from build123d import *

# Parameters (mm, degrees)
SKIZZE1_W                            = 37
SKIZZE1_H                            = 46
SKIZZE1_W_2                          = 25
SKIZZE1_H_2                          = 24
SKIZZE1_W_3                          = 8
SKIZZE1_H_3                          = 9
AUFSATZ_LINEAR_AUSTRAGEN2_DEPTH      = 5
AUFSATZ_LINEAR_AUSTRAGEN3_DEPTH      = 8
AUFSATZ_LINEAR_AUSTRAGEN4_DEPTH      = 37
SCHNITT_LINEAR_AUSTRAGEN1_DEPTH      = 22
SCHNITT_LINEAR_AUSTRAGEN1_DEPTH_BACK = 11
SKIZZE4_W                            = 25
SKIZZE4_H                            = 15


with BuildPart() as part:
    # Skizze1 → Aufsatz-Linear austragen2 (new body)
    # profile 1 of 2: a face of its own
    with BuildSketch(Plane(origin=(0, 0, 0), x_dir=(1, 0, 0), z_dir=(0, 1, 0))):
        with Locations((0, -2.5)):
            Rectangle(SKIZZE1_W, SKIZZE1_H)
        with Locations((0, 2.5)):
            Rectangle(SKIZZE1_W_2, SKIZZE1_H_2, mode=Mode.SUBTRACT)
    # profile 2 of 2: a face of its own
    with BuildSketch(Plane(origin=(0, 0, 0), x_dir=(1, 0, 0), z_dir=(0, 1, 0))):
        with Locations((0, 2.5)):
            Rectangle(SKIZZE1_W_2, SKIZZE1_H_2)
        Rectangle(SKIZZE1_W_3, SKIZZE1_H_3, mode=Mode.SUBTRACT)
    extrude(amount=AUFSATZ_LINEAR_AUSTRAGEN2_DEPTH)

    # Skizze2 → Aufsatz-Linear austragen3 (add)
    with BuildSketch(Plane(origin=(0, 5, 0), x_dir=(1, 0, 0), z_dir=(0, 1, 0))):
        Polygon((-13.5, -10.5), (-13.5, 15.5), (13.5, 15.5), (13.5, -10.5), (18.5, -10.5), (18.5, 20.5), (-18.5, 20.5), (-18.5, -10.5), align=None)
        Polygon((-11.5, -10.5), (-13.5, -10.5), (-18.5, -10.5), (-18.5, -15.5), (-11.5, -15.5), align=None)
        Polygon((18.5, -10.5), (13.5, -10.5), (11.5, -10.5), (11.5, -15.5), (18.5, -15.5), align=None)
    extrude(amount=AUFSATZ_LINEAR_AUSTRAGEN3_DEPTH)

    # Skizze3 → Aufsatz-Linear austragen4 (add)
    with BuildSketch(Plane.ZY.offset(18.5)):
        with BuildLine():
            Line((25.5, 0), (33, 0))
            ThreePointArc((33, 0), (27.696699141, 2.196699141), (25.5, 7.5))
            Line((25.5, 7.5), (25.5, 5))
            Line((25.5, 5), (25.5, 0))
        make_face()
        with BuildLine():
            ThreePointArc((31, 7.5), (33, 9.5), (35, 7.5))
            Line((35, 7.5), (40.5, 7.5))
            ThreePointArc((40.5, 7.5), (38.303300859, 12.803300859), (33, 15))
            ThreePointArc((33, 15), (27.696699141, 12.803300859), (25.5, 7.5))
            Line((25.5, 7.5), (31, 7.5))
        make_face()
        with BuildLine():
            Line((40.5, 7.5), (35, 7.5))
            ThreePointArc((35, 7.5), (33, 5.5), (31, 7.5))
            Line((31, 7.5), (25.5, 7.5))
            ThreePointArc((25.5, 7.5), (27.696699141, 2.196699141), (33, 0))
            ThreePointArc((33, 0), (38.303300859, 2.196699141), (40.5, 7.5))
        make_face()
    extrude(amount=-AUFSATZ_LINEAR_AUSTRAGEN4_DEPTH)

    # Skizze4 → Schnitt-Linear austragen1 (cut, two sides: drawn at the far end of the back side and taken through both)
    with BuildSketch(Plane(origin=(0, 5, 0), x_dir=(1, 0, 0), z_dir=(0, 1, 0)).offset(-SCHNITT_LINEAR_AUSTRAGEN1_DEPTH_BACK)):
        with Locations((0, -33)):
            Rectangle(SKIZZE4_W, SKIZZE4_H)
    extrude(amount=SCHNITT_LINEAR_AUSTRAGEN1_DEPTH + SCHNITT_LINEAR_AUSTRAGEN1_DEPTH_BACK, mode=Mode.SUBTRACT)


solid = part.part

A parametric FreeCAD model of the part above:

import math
import FreeCAD as App
import Part
import Sketcher

V = App.Vector
Q = App.Units.Quantity

doc = App.newDocument("Part")
params = doc.addObject("Spreadsheet::Sheet", "Params")
for row, (alias, value) in enumerate([
    ("sketch1_width", "37 mm"),
    ("sketch1_width2", "8 mm"),
    ("sketch1_height", "46 mm"),
    ("sketch1_height2", "9 mm"),
    ("pad1_length", "5 mm"),
    ("sketch2_width", "27 mm"),
    ("sketch2_width2", "2 mm"),
    ("sketch2_width3", "7 mm"),
    ("sketch2_height", "26 mm"),
    ("sketch2_height2", "5 mm"),
    ("pad2_length", "8 mm"),
    ("sketch3_diameter", "4 mm"),
    ("sketch3_radius", "7.5 mm"),
    ("pad3_length", "37 mm"),
    ("sketch4_width", "25 mm"),
    ("sketch4_height", "15 mm"),
], start=1):
    params.set(f"A{row}", alias)
    params.set(f"B{row}", "=" + value)
    params.setAlias(f"B{row}", alias)

body = doc.addObject("PartDesign::Body", "Body")

# Sketch on XZ plane
sketch1 = body.newObject("Sketcher::SketchObject", "Sketch")
sketch1.AttachmentSupport = (doc.getObject("XZ_Plane"), [""])
sketch1.MapMode = "FlatFace"
sketch1.addGeometry(Part.LineSegment(V(-18.5, -20.5, 0), V(-18.5, 25.5, 0)), False)
sketch1.addGeometry(Part.LineSegment(V(-18.5, 25.5, 0), V(18.5, 25.5, 0)), False)
sketch1.addGeometry(Part.LineSegment(V(18.5, 25.5, 0), V(18.5, -20.5, 0)), False)
sketch1.addGeometry(Part.LineSegment(V(18.5, -20.5, 0), V(-18.5, -20.5, 0)), False)
sketch1.addGeometry(Part.LineSegment(V(4, 4.5, 0), V(-4, 4.5, 0)), False)
sketch1.addGeometry(Part.LineSegment(V(-4, 4.5, 0), V(-4, -4.5, 0)), False)
sketch1.addGeometry(Part.LineSegment(V(-4, -4.5, 0), V(4, -4.5, 0)), False)
sketch1.addGeometry(Part.LineSegment(V(4, -4.5, 0), V(4, 4.5, 0)), False)
sketch1.addConstraint(Sketcher.Constraint("Coincident", 0, 2, 1, 1))
sketch1.addConstraint(Sketcher.Constraint("Coincident", 1, 2, 2, 1))
sketch1.addConstraint(Sketcher.Constraint("Coincident", 2, 2, 3, 1))
sketch1.addConstraint(Sketcher.Constraint("Coincident", 3, 2, 0, 1))
sketch1.addConstraint(Sketcher.Constraint("Coincident", 4, 2, 5, 1))
sketch1.addConstraint(Sketcher.Constraint("Coincident", 5, 2, 6, 1))
sketch1.addConstraint(Sketcher.Constraint("Coincident", 6, 2, 7, 1))
sketch1.addConstraint(Sketcher.Constraint("Coincident", 7, 2, 4, 1))
sketch1.addConstraint(Sketcher.Constraint("Vertical", 0))
sketch1.addConstraint(Sketcher.Constraint("Horizontal", 1))
sketch1.addConstraint(Sketcher.Constraint("Vertical", 2))
sketch1.addConstraint(Sketcher.Constraint("Horizontal", 3))
sketch1.addConstraint(Sketcher.Constraint("Horizontal", 4))
sketch1.addConstraint(Sketcher.Constraint("Vertical", 5))
sketch1.addConstraint(Sketcher.Constraint("Horizontal", 6))
sketch1.addConstraint(Sketcher.Constraint("Vertical", 7))
sketch1.addConstraint(Sketcher.Constraint("Symmetric", 4, 2, 6, 2, -1, 1))
sketch1.addConstraint(Sketcher.Constraint("DistanceX", 1, 1, 1, 2, Q("37 mm")))
sketch1.addConstraint(Sketcher.Constraint("DistanceX", 4, 2, 4, 1, Q("8 mm")))
sketch1.addConstraint(Sketcher.Constraint("DistanceY", 0, 1, 0, 2, Q("46 mm")))
sketch1.addConstraint(Sketcher.Constraint("DistanceY", 5, 2, 5, 1, Q("9 mm")))
sketch1.addConstraint(Sketcher.Constraint("DistanceY", 4, 2, 0, 2, Q("21 mm")))
sketch1.addConstraint(Sketcher.Constraint("DistanceX", 0, 2, -1, 1, Q("18.5 mm")))
sketch1.setExpression("Constraints[17]", "Params.sketch1_width")
sketch1.setExpression("Constraints[18]", "Params.sketch1_width2")
sketch1.setExpression("Constraints[19]", "Params.sketch1_height")
sketch1.setExpression("Constraints[20]", "Params.sketch1_height2")
pad1 = body.newObject("PartDesign::Pad", "Pad")
pad1.Profile = sketch1
pad1.setExpression("Length", "Params.pad1_length")
pad1.Reversed = True

# Sketch on XZ plane
sketch2 = body.newObject("Sketcher::SketchObject", "Sketch001")
sketch2.AttachmentSupport = (doc.getObject("XZ_Plane"), [""])
sketch2.MapMode = "FlatFace"
sketch2.AttachmentOffset = App.Placement(V(0, 0, -5), App.Rotation())
sketch2.addGeometry(Part.LineSegment(V(-13.5, 10.5, 0), V(-13.5, -15.5, 0)), False)
sketch2.addGeometry(Part.LineSegment(V(-13.5, -15.5, 0), V(13.5, -15.5, 0)), False)
sketch2.addGeometry(Part.LineSegment(V(13.5, -15.5, 0), V(13.5, 10.5, 0)), False)
sketch2.addGeometry(Part.LineSegment(V(13.5, 10.5, 0), V(11.5, 10.5, 0)), False)
sketch2.addGeometry(Part.LineSegment(V(11.5, 10.5, 0), V(11.5, 15.5, 0)), False)
sketch2.addGeometry(Part.LineSegment(V(11.5, 15.5, 0), V(18.5, 15.5, 0)), False)
sketch2.addGeometry(Part.LineSegment(V(18.5, 15.5, 0), V(18.5, -20.5, 0)), False)
sketch2.addGeometry(Part.LineSegment(V(18.5, -20.5, 0), V(-18.5, -20.5, 0)), False)
sketch2.addGeometry(Part.LineSegment(V(-18.5, -20.5, 0), V(-18.5, 15.5, 0)), False)
sketch2.addGeometry(Part.LineSegment(V(-18.5, 15.5, 0), V(-11.5, 15.5, 0)), False)
sketch2.addGeometry(Part.LineSegment(V(-11.5, 15.5, 0), V(-11.5, 10.5, 0)), False)
sketch2.addGeometry(Part.LineSegment(V(-11.5, 10.5, 0), V(-13.5, 10.5, 0)), False)
sketch2.addConstraint(Sketcher.Constraint("Coincident", 0, 2, 1, 1))
sketch2.addConstraint(Sketcher.Constraint("Coincident", 1, 2, 2, 1))
sketch2.addConstraint(Sketcher.Constraint("Coincident", 2, 2, 3, 1))
sketch2.addConstraint(Sketcher.Constraint("Coincident", 3, 2, 4, 1))
sketch2.addConstraint(Sketcher.Constraint("Coincident", 4, 2, 5, 1))
sketch2.addConstraint(Sketcher.Constraint("Coincident", 5, 2, 6, 1))
sketch2.addConstraint(Sketcher.Constraint("Coincident", 6, 2, 7, 1))
sketch2.addConstraint(Sketcher.Constraint("Coincident", 7, 2, 8, 1))
sketch2.addConstraint(Sketcher.Constraint("Coincident", 8, 2, 9, 1))
sketch2.addConstraint(Sketcher.Constraint("Coincident", 9, 2, 10, 1))
sketch2.addConstraint(Sketcher.Constraint("Coincident", 10, 2, 11, 1))
sketch2.addConstraint(Sketcher.Constraint("Coincident", 11, 2, 0, 1))
sketch2.addConstraint(Sketcher.Constraint("Vertical", 0))
sketch2.addConstraint(Sketcher.Constraint("Horizontal", 1))
sketch2.addConstraint(Sketcher.Constraint("Vertical", 2))
sketch2.addConstraint(Sketcher.Constraint("Horizontal", 3))
sketch2.addConstraint(Sketcher.Constraint("Vertical", 4))
sketch2.addConstraint(Sketcher.Constraint("Horizontal", 5))
sketch2.addConstraint(Sketcher.Constraint("Vertical", 6))
sketch2.addConstraint(Sketcher.Constraint("Horizontal", 7))
sketch2.addConstraint(Sketcher.Constraint("Vertical", 8))
sketch2.addConstraint(Sketcher.Constraint("Horizontal", 9))
sketch2.addConstraint(Sketcher.Constraint("Vertical", 10))
sketch2.addConstraint(Sketcher.Constraint("Horizontal", 11))
sketch2.addConstraint(Sketcher.Constraint("Symmetric", 5, 2, 8, 2, -2))
sketch2.addConstraint(Sketcher.Constraint("Symmetric", 3, 2, 10, 2, -2))
sketch2.addConstraint(Sketcher.Constraint("Equal", 3, 11))
sketch2.addConstraint(Sketcher.Constraint("DistanceX", 1, 1, 1, 2, Q("27 mm")))
sketch2.addConstraint(Sketcher.Constraint("DistanceX", 3, 2, 3, 1, Q("2 mm")))
sketch2.addConstraint(Sketcher.Constraint("DistanceX", 5, 1, 5, 2, Q("7 mm")))
sketch2.addConstraint(Sketcher.Constraint("DistanceY", 0, 2, 0, 1, Q("26 mm")))
sketch2.addConstraint(Sketcher.Constraint("DistanceY", 4, 1, 4, 2, Q("5 mm")))
sketch2.addConstraint(Sketcher.Constraint("DistanceY", 6, 2, 6, 1, Q("36 mm")))
sketch2.addConstraint(Sketcher.Constraint("DistanceY", 0, 2, -1, 1, Q("15.5 mm")))
sketch2.setExpression("Constraints[27]", "Params.sketch2_width")
sketch2.setExpression("Constraints[28]", "Params.sketch2_width2")
sketch2.setExpression("Constraints[29]", "Params.sketch2_width3")
sketch2.setExpression("Constraints[30]", "Params.sketch2_height")
sketch2.setExpression("Constraints[31]", "Params.sketch2_height2")
pad2 = body.newObject("PartDesign::Pad", "Pad001")
pad2.Profile = sketch2
pad2.setExpression("Length", "Params.pad2_length")
pad2.Reversed = True

# Sketch on YZ plane
sketch3 = body.newObject("Sketcher::SketchObject", "Sketch002")
sketch3.AttachmentSupport = (doc.getObject("YZ_Plane"), [""])
sketch3.MapMode = "FlatFace"
sketch3.AttachmentOffset = App.Placement(V(0, 0, -18.5), App.Rotation())
sketch3.addGeometry(Part.LineSegment(V(0, 25.5, 0), V(0, 33, 0)), False)
sketch3.addGeometry(Part.ArcOfCircle(Part.Circle(V(7.5, 33, 0), V(0, 0, 1), 7.5), math.radians(90), math.radians(180)), False)
sketch3.addGeometry(Part.ArcOfCircle(Part.Circle(V(7.5, 33, 0), V(0, 0, 1), 7.5), math.radians(0), math.radians(90)), False)
sketch3.addGeometry(Part.ArcOfCircle(Part.Circle(V(7.5, 33, 0), V(0, 0, 1), 7.5), math.radians(-90), math.radians(0)), False)
sketch3.addGeometry(Part.LineSegment(V(7.5, 25.5, 0), V(0, 25.5, 0)), False)
sketch3.addGeometry(Part.Circle(V(7.5, 33, 0), V(0, 0, 1), 2), False)
sketch3.addConstraint(Sketcher.Constraint("Tangent", 0, 2, 1, 2))
sketch3.addConstraint(Sketcher.Constraint("Tangent", 1, 1, 2, 2))
sketch3.addConstraint(Sketcher.Constraint("Tangent", 2, 1, 3, 2))
sketch3.addConstraint(Sketcher.Constraint("Tangent", 3, 1, 4, 1))
sketch3.addConstraint(Sketcher.Constraint("Coincident", 4, 2, 0, 1))
sketch3.addConstraint(Sketcher.Constraint("Vertical", 0))
sketch3.addConstraint(Sketcher.Constraint("Horizontal", 4))
sketch3.addConstraint(Sketcher.Constraint("Coincident", 3, 3, 1, 3))
sketch3.addConstraint(Sketcher.Constraint("Coincident", 5, 3, 1, 3))
sketch3.addConstraint(Sketcher.Constraint("PointOnObject", 0, 2, -2))
sketch3.addConstraint(Sketcher.Constraint("Horizontal", 0, 2, 2, 1))
sketch3.addConstraint(Sketcher.Constraint("Vertical", 5, 3, 1, 1))
sketch3.addConstraint(Sketcher.Constraint("Diameter", 5, Q("4 mm")))
sketch3.addConstraint(Sketcher.Constraint("Radius", 1, Q("7.5 mm")))
sketch3.addConstraint(Sketcher.Constraint("DistanceY", -1, 1, 1, 3, Q("33 mm")))
sketch3.setExpression("Constraints[12]", "Params.sketch3_diameter")
sketch3.setExpression("Constraints[13]", "Params.sketch3_radius")
pad3 = body.newObject("PartDesign::Pad", "Pad002")
pad3.Profile = sketch3
pad3.setExpression("Length", "Params.pad3_length")

# Sketch on XZ plane
sketch4 = body.newObject("Sketcher::SketchObject", "Sketch003")
sketch4.AttachmentSupport = (doc.getObject("XZ_Plane"), [""])
sketch4.MapMode = "FlatFace"
sketch4.AttachmentOffset = App.Placement(V(0, 0, -5), App.Rotation())
sketch4.addGeometry(Part.LineSegment(V(-12.5, 25.5, 0), V(-12.5, 40.5, 0)), False)
sketch4.addGeometry(Part.LineSegment(V(-12.5, 40.5, 0), V(12.5, 40.5, 0)), False)
sketch4.addGeometry(Part.LineSegment(V(12.5, 40.5, 0), V(12.5, 25.5, 0)), False)
sketch4.addGeometry(Part.LineSegment(V(12.5, 25.5, 0), V(-12.5, 25.5, 0)), False)
sketch4.addConstraint(Sketcher.Constraint("Coincident", 0, 2, 1, 1))
sketch4.addConstraint(Sketcher.Constraint("Coincident", 1, 2, 2, 1))
sketch4.addConstraint(Sketcher.Constraint("Coincident", 2, 2, 3, 1))
sketch4.addConstraint(Sketcher.Constraint("Coincident", 3, 2, 0, 1))
sketch4.addConstraint(Sketcher.Constraint("Vertical", 0))
sketch4.addConstraint(Sketcher.Constraint("Horizontal", 1))
sketch4.addConstraint(Sketcher.Constraint("Vertical", 2))
sketch4.addConstraint(Sketcher.Constraint("Horizontal", 3))
sketch4.addConstraint(Sketcher.Constraint("DistanceX", 1, 1, 1, 2, Q("25 mm")))
sketch4.addConstraint(Sketcher.Constraint("DistanceY", 0, 1, 0, 2, Q("15 mm")))
sketch4.addConstraint(Sketcher.Constraint("DistanceX", 0, 2, -1, 1, Q("12.5 mm")))
sketch4.addConstraint(Sketcher.Constraint("DistanceY", -1, 1, 0, 2, Q("40.5 mm")))
sketch4.setExpression("Constraints[8]", "Params.sketch4_width")
sketch4.setExpression("Constraints[9]", "Params.sketch4_height")
pocket1 = body.newObject("PartDesign::Pocket", "Pocket")
pocket1.Profile = sketch4
pocket1.Type = "ThroughAll"
pocket1.Midplane = True

doc.recompute()
